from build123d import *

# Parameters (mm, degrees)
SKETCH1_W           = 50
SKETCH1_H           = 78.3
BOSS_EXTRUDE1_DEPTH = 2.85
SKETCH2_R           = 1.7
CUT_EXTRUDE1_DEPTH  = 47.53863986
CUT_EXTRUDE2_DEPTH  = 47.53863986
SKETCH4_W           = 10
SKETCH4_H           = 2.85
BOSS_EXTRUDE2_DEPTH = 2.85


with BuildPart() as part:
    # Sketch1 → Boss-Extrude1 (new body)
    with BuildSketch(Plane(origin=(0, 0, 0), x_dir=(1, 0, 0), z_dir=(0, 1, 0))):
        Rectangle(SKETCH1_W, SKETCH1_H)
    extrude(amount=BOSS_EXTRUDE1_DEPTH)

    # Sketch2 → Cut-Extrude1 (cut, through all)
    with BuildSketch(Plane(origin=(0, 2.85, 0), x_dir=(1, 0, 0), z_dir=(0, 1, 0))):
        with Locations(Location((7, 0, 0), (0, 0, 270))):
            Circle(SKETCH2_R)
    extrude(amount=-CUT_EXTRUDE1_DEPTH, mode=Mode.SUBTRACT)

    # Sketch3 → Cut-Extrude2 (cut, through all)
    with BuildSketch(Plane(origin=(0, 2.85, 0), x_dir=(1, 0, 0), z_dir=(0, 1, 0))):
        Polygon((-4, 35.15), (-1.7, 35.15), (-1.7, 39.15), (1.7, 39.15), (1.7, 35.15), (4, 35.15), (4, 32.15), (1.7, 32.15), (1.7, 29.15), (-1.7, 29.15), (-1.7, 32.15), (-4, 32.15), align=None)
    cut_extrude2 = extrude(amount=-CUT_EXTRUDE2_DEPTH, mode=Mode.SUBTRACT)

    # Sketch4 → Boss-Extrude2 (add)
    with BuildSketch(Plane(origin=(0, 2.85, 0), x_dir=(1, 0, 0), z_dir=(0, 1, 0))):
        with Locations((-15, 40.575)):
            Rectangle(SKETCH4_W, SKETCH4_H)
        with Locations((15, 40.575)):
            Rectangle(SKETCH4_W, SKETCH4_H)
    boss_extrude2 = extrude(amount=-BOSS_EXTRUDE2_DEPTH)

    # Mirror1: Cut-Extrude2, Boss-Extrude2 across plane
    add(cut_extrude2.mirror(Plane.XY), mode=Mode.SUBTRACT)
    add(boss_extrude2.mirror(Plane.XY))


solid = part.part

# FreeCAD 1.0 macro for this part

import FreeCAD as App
import Part
import Sketcher

doc = App.newDocument("Part")
body = doc.addObject("PartDesign::Body", "Body")

sketch1 = doc.addObject("Sketcher::SketchObject", "Sketch")
body.addObject(sketch1)
sketch1.AttachmentSupport = (doc.XZ_Plane, [""])
sketch1.MapMode = "FlatFace"
sketch1.addGeometry(Part.LineSegment(App.Vector(-25, -39, 0), App.Vector(-25, 39, 0)), False)
sketch1.addGeometry(Part.LineSegment(App.Vector(-25, 39, 0), App.Vector(25, 39, 0)), False)
sketch1.addGeometry(Part.LineSegment(App.Vector(25, 39, 0), App.Vector(25, -39, 0)), False)
sketch1.addGeometry(Part.LineSegment(App.Vector(25, -39, 0), App.Vector(-25, -39, 0)), False)
sketch1.addConstraint(Sketcher.Constraint("Coincident", 0, 2, 1, 1))
sketch1.addConstraint(Sketcher.Constraint("Coincident", 1, 2, 2, 1))
sketch1.addConstraint(Sketcher.Constraint("Coincident", 2, 2, 3, 1))
sketch1.addConstraint(Sketcher.Constraint("Coincident", 3, 2, 0, 1))
sketch1.addConstraint(Sketcher.Constraint("Vertical", 0))
sketch1.addConstraint(Sketcher.Constraint("Horizontal", 1))
sketch1.addConstraint(Sketcher.Constraint("Vertical", 2))
sketch1.addConstraint(Sketcher.Constraint("Horizontal", 3))
sketch1.addConstraint(Sketcher.Constraint("Symmetric", 0, 2, 2, 2, -1, 1))
sketch1.addConstraint(Sketcher.Constraint("DistanceX", 1, 1, 1, 2, 50.0))
sketch1.addConstraint(Sketcher.Constraint("DistanceY", 0, 1, 0, 2, 78.3))
pad1 = doc.addObject("PartDesign::Pad", "Pad")
body.addObject(pad1)
pad1.Profile = sketch1
pad1.Length = 2.85
pad1.Reversed = True

sketch2 = doc.addObject("Sketcher::SketchObject", "Sketch001")
body.addObject(sketch2)
sketch2.AttachmentSupport = (doc.XZ_Plane, [""])
sketch2.MapMode = "FlatFace"
sketch2.AttachmentOffset = App.Placement(App.Vector(0, 0, -2.85), App.Rotation())
sketch2.addGeometry(Part.Circle(App.Vector(7, 0, 0), App.Vector(0, 0, 1), 1.7), False)
sketch2.addConstraint(Sketcher.Constraint("PointOnObject", 0, 3, -1))
sketch2.addConstraint(Sketcher.Constraint("Diameter", 0, 3.4))
sketch2.addConstraint(Sketcher.Constraint("DistanceX", -1, 1, 0, 3, 7.0))
pocket1 = doc.addObject("PartDesign::Pocket", "Pocket")
body.addObject(pocket1)
pocket1.Profile = sketch2
pocket1.Type = "ThroughAll"
pocket1.Reversed = True

sketch3 = doc.addObject("Sketcher::SketchObject", "Sketch002")
body.addObject(sketch3)
sketch3.AttachmentSupport = (doc.XZ_Plane, [""])
sketch3.MapMode = "FlatFace"
sketch3.AttachmentOffset = App.Placement(App.Vector(0, 0, -2.85), App.Rotation())
sketch3.addGeometry(Part.LineSegment(App.Vector(-1.7, -35.1, 0), App.Vector(-4, -35.1, 0)), False)
sketch3.addGeometry(Part.LineSegment(App.Vector(-4, -35.1, 0), App.Vector(-4, -32.1, 0)), False)
sketch3.addGeometry(Part.LineSegment(App.Vector(-4, -32.1, 0), App.Vector(-1.7, -32.1, 0)), False)
sketch3.addGeometry(Part.LineSegment(App.Vector(-1.7, -32.1, 0), App.Vector(-1.7, -29.1, 0)), False)
sketch3.addGeometry(Part.LineSegment(App.Vector(-1.7, -29.1, 0), App.Vector(1.7, -29.1, 0)), False)
sketch3.addGeometry(Part.LineSegment(App.Vector(1.7, -29.1, 0), App.Vector(1.7, -32.1, 0)), False)
sketch3.addGeometry(Part.LineSegment(App.Vector(1.7, -32.1, 0), App.Vector(4, -32.1, 0)), False)
sketch3.addGeometry(Part.LineSegment(App.Vector(4, -32.1, 0), App.Vector(4, -35.1, 0)), False)
sketch3.addGeometry(Part.LineSegment(App.Vector(4, -35.1, 0), App.Vector(1.7, -35.1, 0)), False)
sketch3.addGeometry(Part.LineSegment(App.Vector(1.7, -35.1, 0), App.Vector(1.7, -39.1, 0)), False)
sketch3.addGeometry(Part.LineSegment(App.Vector(1.7, -39.1, 0), App.Vector(-1.7, -39.1, 0)), False)
sketch3.addGeometry(Part.LineSegment(App.Vector(-1.7, -39.1, 0), App.Vector(-1.7, -35.1, 0)), False)
sketch3.addConstraint(Sketcher.Constraint("Coincident", 0, 2, 1, 1))
sketch3.addConstraint(Sketcher.Constraint("Coincident", 1, 2, 2, 1))
sketch3.addConstraint(Sketcher.Constraint("Coincident", 2, 2, 3, 1))
sketch3.addConstraint(Sketcher.Constraint("Coincident", 3, 2, 4, 1))
sketch3.addConstraint(Sketcher.Constraint("Coincident", 4, 2, 5, 1))
sketch3.addConstraint(Sketcher.Constraint("Coincident", 5, 2, 6, 1))
sketch3.addConstraint(Sketcher.Constraint("Coincident", 6, 2, 7, 1))
sketch3.addConstraint(Sketcher.Constraint("Coincident", 7, 2, 8, 1))
sketch3.addConstraint(Sketcher.Constraint("Coincident", 8, 2, 9, 1))
sketch3.addConstraint(Sketcher.Constraint("Coincident", 9, 2, 10, 1))
sketch3.addConstraint(Sketcher.Constraint("Coincident", 10, 2, 11, 1))
sketch3.addConstraint(Sketcher.Constraint("Coincident", 11, 2, 0, 1))
sketch3.addConstraint(Sketcher.Constraint("Horizontal", 0))
sketch3.addConstraint(Sketcher.Constraint("Vertical", 1))
sketch3.addConstraint(Sketcher.Constraint("Horizontal", 2))
sketch3.addConstraint(Sketcher.Constraint("Vertical", 3))
sketch3.addConstraint(Sketcher.Constraint("Horizontal", 4))
sketch3.addConstraint(Sketcher.Constraint("Vertical", 5))
sketch3.addConstraint(Sketcher.Constraint("Horizontal", 6))
sketch3.addConstraint(Sketcher.Constraint("Vertical", 7))
sketch3.addConstraint(Sketcher.Constraint("Horizontal", 8))
sketch3.addConstraint(Sketcher.Constraint("Vertical", 9))
sketch3.addConstraint(Sketcher.Constraint("Horizontal", 10))
sketch3.addConstraint(Sketcher.Constraint("Vertical", 11))
sketch3.addConstraint(Sketcher.Constraint("Symmetric", 2, 2, 5, 2, -2))
sketch3.addConstraint(Sketcher.Constraint("Symmetric", 0, 2, 7, 2, -2))
sketch3.addConstraint(Sketcher.Constraint("Vertical", 5, 2, 8, 2))
sketch3.addConstraint(Sketcher.Constraint("Vertical", 3, 2, 10, 2))
sketch3.addConstraint(Sketcher.Constraint("Equal", 1, 3))
sketch3.addConstraint(Sketcher.Constraint("DistanceY", 1, 1, 1, 2, 3.0))
sketch3.addConstraint(Sketcher.Constraint("DistanceY", 9, 2, 9, 1, 4.0))
sketch3.addConstraint(Sketcher.Constraint("DistanceX", 0, 2, 0, 1, 2.3))
sketch3.addConstraint(Sketcher.Constraint("DistanceX", 4, 1, 4, 2, 3.4))
sketch3.addConstraint(Sketcher.Constraint("DistanceY", 0, 2, -1, 1, 35.15))
pocket2 = doc.addObject("PartDesign::Pocket", "Pocket001")
body.addObject(pocket2)
pocket2.Profile = sketch3
pocket2.Type = "ThroughAll"
pocket2.Reversed = True

sketch4 = doc.addObject("Sketcher::SketchObject", "Sketch003")
body.addObject(sketch4)
sketch4.AttachmentSupport = (doc.XZ_Plane, [""])
sketch4.MapMode = "FlatFace"
sketch4.AttachmentOffset = App.Placement(App.Vector(0, 0, -2.85), App.Rotation())
sketch4.addGeometry(Part.LineSegment(App.Vector(-20, -42, 0), App.Vector(-20, -39.1, 0)), False)
sketch4.addGeometry(Part.LineSegment(App.Vector(-20, -39.1, 0), App.Vector(-10, -39.1, 0)), False)
sketch4.addGeometry(Part.LineSegment(App.Vector(-10, -39.1, 0), App.Vector(-10, -42, 0)), False)
sketch4.addGeometry(Part.LineSegment(App.Vector(-10, -42, 0), App.Vector(-20, -42, 0)), False)
sketch4.addGeometry(Part.LineSegment(App.Vector(10, -42, 0), App.Vector(10, -39.1, 0)), False)
sketch4.addGeometry(Part.LineSegment(App.Vector(10, -39.1, 0), App.Vector(20, -39.1, 0)), False)
sketch4.addGeometry(Part.LineSegment(App.Vector(20, -39.1, 0), App.Vector(20, -42, 0)), False)
sketch4.addGeometry(Part.LineSegment(App.Vector(20, -42, 0), App.Vector(10, -42, 0)), False)
sketch4.addConstraint(Sketcher.Constraint("Coincident", 0, 2, 1, 1))
sketch4.addConstraint(Sketcher.Constraint("Coincident", 1, 2, 2, 1))
sketch4.addConstraint(Sketcher.Constraint("Coincident", 2, 2, 3, 1))
sketch4.addConstraint(Sketcher.Constraint("Coincident", 3, 2, 0, 1))
sketch4.addConstraint(Sketcher.Constraint("Coincident", 4, 2, 5, 1))
sketch4.addConstraint(Sketcher.Constraint("Coincident", 5, 2, 6, 1))
sketch4.addConstraint(Sketcher.Constraint("Coincident", 6, 2, 7, 1))
sketch4.addConstraint(Sketcher.Constraint("Coincident", 7, 2, 4, 1))
sketch4.addConstraint(Sketcher.Constraint("Vertical", 0))
sketch4.addConstraint(Sketcher.Constraint("Horizontal", 1))
sketch4.addConstraint(Sketcher.Constraint("Vertical", 2))
sketch4.addConstraint(Sketcher.Constraint("Horizontal", 3))
sketch4.addConstraint(Sketcher.Constraint("Vertical", 4))
sketch4.addConstraint(Sketcher.Constraint("Horizontal", 5))
sketch4.addConstraint(Sketcher.Constraint("Vertical", 6))
sketch4.addConstraint(Sketcher.Constraint("Horizontal", 7))
sketch4.addConstraint(Sketcher.Constraint("Symmetric", 1, 2, 4, 2, -2))
sketch4.addConstraint(Sketcher.Constraint("Symmetric", 3, 2, 6, 2, -2))
sketch4.addConstraint(Sketcher.Constraint("DistanceX", 1, 1, 1, 2, 10.0))
sketch4.addConstraint(Sketcher.Constraint("DistanceX", 0, 2, -1, 1, 20.0))
sketch4.addConstraint(Sketcher.Constraint("DistanceY", 2, 2, -1, 1, 42.0))
sketch4.addConstraint(Sketcher.Constraint("DistanceY", 0, 1, 0, 2, 2.85))
pad2 = doc.addObject("PartDesign::Pad", "Pad001")
body.addObject(pad2)
pad2.Profile = sketch4
pad2.Length = 2.85
doc.recompute()

mirrored = doc.addObject("PartDesign::Mirrored", "Mirrored")
body.addObject(mirrored)
mirrored.Originals = [pocket2, pad2]
mirrored.MirrorPlane = (doc.XY_Plane, [""])
body.Tip = mirrored

doc.recompute()
